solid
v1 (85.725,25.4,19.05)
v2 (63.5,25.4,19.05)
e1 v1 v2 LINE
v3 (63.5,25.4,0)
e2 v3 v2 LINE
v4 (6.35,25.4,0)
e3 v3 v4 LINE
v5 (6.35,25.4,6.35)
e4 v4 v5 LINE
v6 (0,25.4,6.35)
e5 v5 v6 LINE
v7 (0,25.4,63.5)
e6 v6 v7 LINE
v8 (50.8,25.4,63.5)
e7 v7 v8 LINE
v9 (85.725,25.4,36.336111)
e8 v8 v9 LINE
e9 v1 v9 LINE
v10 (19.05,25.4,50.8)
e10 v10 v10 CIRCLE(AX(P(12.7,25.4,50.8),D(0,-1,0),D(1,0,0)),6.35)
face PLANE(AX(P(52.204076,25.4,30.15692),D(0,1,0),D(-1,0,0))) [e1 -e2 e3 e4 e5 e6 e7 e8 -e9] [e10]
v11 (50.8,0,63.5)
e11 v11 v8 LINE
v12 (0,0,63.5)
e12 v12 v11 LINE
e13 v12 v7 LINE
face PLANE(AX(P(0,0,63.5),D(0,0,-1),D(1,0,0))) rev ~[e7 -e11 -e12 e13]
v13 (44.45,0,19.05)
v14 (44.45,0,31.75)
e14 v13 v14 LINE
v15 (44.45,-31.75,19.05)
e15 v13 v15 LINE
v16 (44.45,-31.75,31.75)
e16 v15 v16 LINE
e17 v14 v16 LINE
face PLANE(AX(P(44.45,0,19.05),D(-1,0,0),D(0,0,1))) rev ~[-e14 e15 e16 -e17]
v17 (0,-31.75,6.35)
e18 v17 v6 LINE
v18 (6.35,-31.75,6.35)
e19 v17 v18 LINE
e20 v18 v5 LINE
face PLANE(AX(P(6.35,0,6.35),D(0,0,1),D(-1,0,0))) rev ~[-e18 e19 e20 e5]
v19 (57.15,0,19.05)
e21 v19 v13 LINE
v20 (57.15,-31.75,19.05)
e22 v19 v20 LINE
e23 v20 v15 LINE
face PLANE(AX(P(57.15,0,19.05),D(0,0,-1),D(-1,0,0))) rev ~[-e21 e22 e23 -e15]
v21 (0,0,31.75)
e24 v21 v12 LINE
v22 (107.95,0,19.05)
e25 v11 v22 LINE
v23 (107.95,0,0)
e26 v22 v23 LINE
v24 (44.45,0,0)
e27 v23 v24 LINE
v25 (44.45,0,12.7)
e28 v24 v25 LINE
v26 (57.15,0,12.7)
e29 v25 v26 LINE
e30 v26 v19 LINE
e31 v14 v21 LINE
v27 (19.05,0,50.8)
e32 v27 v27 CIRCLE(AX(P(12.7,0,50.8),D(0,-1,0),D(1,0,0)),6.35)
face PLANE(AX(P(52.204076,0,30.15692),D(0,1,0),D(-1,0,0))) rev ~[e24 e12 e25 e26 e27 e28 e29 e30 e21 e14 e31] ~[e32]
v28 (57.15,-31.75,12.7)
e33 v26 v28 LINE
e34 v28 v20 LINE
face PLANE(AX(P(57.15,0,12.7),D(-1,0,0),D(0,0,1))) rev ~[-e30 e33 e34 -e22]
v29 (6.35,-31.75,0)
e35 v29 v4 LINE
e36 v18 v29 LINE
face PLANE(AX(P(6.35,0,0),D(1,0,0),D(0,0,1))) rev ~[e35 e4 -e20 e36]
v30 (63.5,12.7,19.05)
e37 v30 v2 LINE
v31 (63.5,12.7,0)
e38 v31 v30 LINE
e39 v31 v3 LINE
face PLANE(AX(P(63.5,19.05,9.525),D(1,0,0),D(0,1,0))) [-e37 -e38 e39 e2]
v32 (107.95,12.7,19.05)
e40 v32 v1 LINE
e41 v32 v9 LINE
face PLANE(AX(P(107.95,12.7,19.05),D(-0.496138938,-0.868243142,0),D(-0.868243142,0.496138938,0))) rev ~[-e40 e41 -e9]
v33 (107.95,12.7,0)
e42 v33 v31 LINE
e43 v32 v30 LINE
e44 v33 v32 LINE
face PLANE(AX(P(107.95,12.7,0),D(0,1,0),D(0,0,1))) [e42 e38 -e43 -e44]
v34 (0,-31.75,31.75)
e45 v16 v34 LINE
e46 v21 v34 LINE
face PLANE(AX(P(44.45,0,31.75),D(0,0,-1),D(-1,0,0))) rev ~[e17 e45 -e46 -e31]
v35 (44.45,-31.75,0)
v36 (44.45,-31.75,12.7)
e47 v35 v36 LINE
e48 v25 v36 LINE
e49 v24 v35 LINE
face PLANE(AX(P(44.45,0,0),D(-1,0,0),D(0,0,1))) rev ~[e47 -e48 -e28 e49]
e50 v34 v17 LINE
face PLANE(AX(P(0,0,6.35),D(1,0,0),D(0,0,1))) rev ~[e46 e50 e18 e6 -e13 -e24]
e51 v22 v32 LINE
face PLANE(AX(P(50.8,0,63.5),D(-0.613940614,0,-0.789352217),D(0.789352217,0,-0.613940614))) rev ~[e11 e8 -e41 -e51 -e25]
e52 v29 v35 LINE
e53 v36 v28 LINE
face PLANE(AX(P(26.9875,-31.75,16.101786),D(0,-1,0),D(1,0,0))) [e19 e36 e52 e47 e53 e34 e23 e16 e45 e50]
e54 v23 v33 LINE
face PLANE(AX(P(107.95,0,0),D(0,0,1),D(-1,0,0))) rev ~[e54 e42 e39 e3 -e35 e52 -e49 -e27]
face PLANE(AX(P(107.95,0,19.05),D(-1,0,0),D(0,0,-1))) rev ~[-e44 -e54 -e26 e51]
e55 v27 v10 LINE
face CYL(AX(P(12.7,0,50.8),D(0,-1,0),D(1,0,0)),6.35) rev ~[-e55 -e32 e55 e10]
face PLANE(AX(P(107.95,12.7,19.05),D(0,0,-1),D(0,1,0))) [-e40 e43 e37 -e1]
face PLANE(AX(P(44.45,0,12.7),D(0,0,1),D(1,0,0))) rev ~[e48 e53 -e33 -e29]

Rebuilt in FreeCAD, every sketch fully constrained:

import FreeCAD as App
import Part
import Sketcher
from FreeCAD import Vector
Q = App.Units.Quantity

doc = App.newDocument("Part")
body = doc.addObject("PartDesign::Body", "Body")

# Sketch on XZ plane
sketch1 = body.newObject("Sketcher::SketchObject", "Sketch")
sketch1.AttachmentSupport = (doc.getObject("XZ_Plane"), [""])
sketch1.MapMode = "FlatFace"
sketch1.addGeometry(Part.LineSegment(Vector(6, 6, 0), Vector(6, 0, 0)), False)
sketch1.addGeometry(Part.LineSegment(Vector(6, 0, 0), Vector(44, 0, 0)), False)
sketch1.addGeometry(Part.LineSegment(Vector(44, 0, 0), Vector(44, 13, 0)), False)
sketch1.addGeometry(Part.LineSegment(Vector(44, 13, 0), Vector(57, 13, 0)), False)
sketch1.addGeometry(Part.LineSegment(Vector(57, 13, 0), Vector(57, 19, 0)), False)
sketch1.addGeometry(Part.LineSegment(Vector(57, 19, 0), Vector(44, 19, 0)), False)
sketch1.addGeometry(Part.LineSegment(Vector(44, 19, 0), Vector(44, 32, 0)), False)
sketch1.addGeometry(Part.LineSegment(Vector(44, 32, 0), Vector(0, 32, 0)), False)
sketch1.addGeometry(Part.LineSegment(Vector(0, 32, 0), Vector(0, 6, 0)), False)
sketch1.addGeometry(Part.LineSegment(Vector(0, 6, 0), Vector(6, 6, 0)), False)
sketch1.addConstraint(Sketcher.Constraint("Coincident", 0, 2, 1, 1))
sketch1.addConstraint(Sketcher.Constraint("Coincident", 1, 2, 2, 1))
sketch1.addConstraint(Sketcher.Constraint("Coincident", 2, 2, 3, 1))
sketch1.addConstraint(Sketcher.Constraint("Coincident", 3, 2, 4, 1))
sketch1.addConstraint(Sketcher.Constraint("Coincident", 4, 2, 5, 1))
sketch1.addConstraint(Sketcher.Constraint("Coincident", 5, 2, 6, 1))
sketch1.addConstraint(Sketcher.Constraint("Coincident", 6, 2, 7, 1))
sketch1.addConstraint(Sketcher.Constraint("Coincident", 7, 2, 8, 1))
sketch1.addConstraint(Sketcher.Constraint("Coincident", 8, 2, 9, 1))
sketch1.addConstraint(Sketcher.Constraint("Coincident", 9, 2, 0, 1))
sketch1.addConstraint(Sketcher.Constraint("Vertical", 0))
sketch1.addConstraint(Sketcher.Constraint("Horizontal", 1))
sketch1.addConstraint(Sketcher.Constraint("Vertical", 2))
sketch1.addConstraint(Sketcher.Constraint("Horizontal", 3))
sketch1.addConstraint(Sketcher.Constraint("Vertical", 4))
sketch1.addConstraint(Sketcher.Constraint("Horizontal", 5))
sketch1.addConstraint(Sketcher.Constraint("Vertical", 6))
sketch1.addConstraint(Sketcher.Constraint("Horizontal", 7))
sketch1.addConstraint(Sketcher.Constraint("Vertical", 8))
sketch1.addConstraint(Sketcher.Constraint("Horizontal", 9))
sketch1.addConstraint(Sketcher.Constraint("PointOnObject", 0, 2, -1))
sketch1.addConstraint(Sketcher.Constraint("PointOnObject", 7, 2, -2))
sketch1.addConstraint(Sketcher.Constraint("Vertical", 2, 2, 5, 2))
sketch1.addConstraint(Sketcher.Constraint("Equal", 9, 0))
sketch1.addConstraint(Sketcher.Constraint("Equal", 5, 2))
sketch1.addConstraint(Sketcher.Constraint("Equal", 0, 4))
sketch1.addConstraint(Sketcher.Constraint("Equal", 2, 6))
sketch1.addConstraint(Sketcher.Constraint("DistanceY", 8, 2, 8, 1, Q("1 in")))
sketch1.addConstraint(Sketcher.Constraint("DistanceX", 1, 1, 1, 2, Q("1.5 in")))
sketch1.addConstraint(Sketcher.Constraint("DistanceX", 7, 2, 7, 1, Q("1.75 in")))
pad1 = body.newObject("PartDesign::Pad", "Pad")
pad1.Profile = sketch1
pad1.Length = Q("1.25 in")

# Sketch on XZ plane
sketch2 = body.newObject("Sketcher::SketchObject", "Sketch001")
sketch2.AttachmentSupport = (doc.getObject("XZ_Plane"), [""])
sketch2.MapMode = "FlatFace"
sketch2.addGeometry(Part.LineSegment(Vector(108, 0, 0), Vector(6, 0, 0)), False)
sketch2.addGeometry(Part.LineSegment(Vector(6, 0, 0), Vector(6, 6, 0)), False)
sketch2.addGeometry(Part.LineSegment(Vector(6, 6, 0), Vector(0, 6, 0)), False)
sketch2.addGeometry(Part.LineSegment(Vector(0, 6, 0), Vector(0, 64, 0)), False)
sketch2.addGeometry(Part.LineSegment(Vector(0, 64, 0), Vector(51, 64, 0)), False)
sketch2.addGeometry(Part.LineSegment(Vector(51, 64, 0), Vector(108, 19, 0)), False)
sketch2.addGeometry(Part.LineSegment(Vector(108, 19, 0), Vector(108, 0, 0)), False)
sketch2.addConstraint(Sketcher.Constraint("Coincident", 0, 2, 1, 1))
sketch2.addConstraint(Sketcher.Constraint("Coincident", 1, 2, 2, 1))
sketch2.addConstraint(Sketcher.Constraint("Coincident", 2, 2, 3, 1))
sketch2.addConstraint(Sketcher.Constraint("Coincident", 3, 2, 4, 1))
sketch2.addConstraint(Sketcher.Constraint("Coincident", 4, 2, 5, 1))
sketch2.addConstraint(Sketcher.Constraint("Coincident", 5, 2, 6, 1))
sketch2.addConstraint(Sketcher.Constraint("Coincident", 6, 2, 0, 1))
sketch2.addConstraint(Sketcher.Constraint("Horizontal", 0))
sketch2.addConstraint(Sketcher.Constraint("Vertical", 1))
sketch2.addConstraint(Sketcher.Constraint("Horizontal", 2))
sketch2.addConstraint(Sketcher.Constraint("Vertical", 3))
sketch2.addConstraint(Sketcher.Constraint("Horizontal", 4))
sketch2.addConstraint(Sketcher.Constraint("Vertical", 6))
sketch2.addConstraint(Sketcher.Constraint("PointOnObject", 0, 2, -1))
sketch2.addConstraint(Sketcher.Constraint("PointOnObject", 2, 2, -2))
sketch2.addConstraint(Sketcher.Constraint("Equal", 2, 1))
sketch2.addConstraint(Sketcher.Constraint("DistanceX", 0, 2, 0, 1, Q("4 in")))
sketch2.addConstraint(Sketcher.Constraint("DistanceX", 4, 1, 4, 2, Q("2 in")))
sketch2.addConstraint(Sketcher.Constraint("DistanceX", 2, 2, 2, 1, Q("0.25 in")))
sketch2.addConstraint(Sketcher.Constraint("DistanceY", 3, 1, 3, 2, Q("2.25 in")))
sketch2.addConstraint(Sketcher.Constraint("DistanceY", 6, 2, 6, 1, Q("0.75 in")))
pad2 = body.newObject("PartDesign::Pad", "Pad001")
pad2.Profile = sketch2
pad2.Length = Q("1 in")
pad2.Reversed = True

# Sketch on XZ plane
sketch3 = body.newObject("Sketcher::SketchObject", "Sketch002")
sketch3.AttachmentSupport = (doc.getObject("XZ_Plane"), [""])
sketch3.MapMode = "FlatFace"
sketch3.addGeometry(Part.Circle(Vector(13, 51, 0), Vector(0, 0, 1), 6), False)
sketch3.addConstraint(Sketcher.Constraint("Diameter", 0, Q("0.5 in")))
sketch3.addConstraint(Sketcher.Constraint("DistanceY", -1, 1, 0, 3, Q("2 in")))
sketch3.addConstraint(Sketcher.Constraint("DistanceX", -1, 1, 0, 3, Q("0.5 in")))
pocket1 = body.newObject("PartDesign::Pocket", "Pocket")
pocket1.Profile = sketch3
pocket1.Type = "ThroughAll"

# Sketch on YZ plane
sketch4 = body.newObject("Sketcher::SketchObject", "Sketch003")
sketch4.AttachmentSupport = (doc.getObject("YZ_Plane"), [""])
sketch4.MapMode = "FlatFace"
sketch4.AttachmentOffset = App.Placement(Vector(0, 0, 4.25 * 25.4), App.Rotation())
sketch4.addGeometry(Part.LineSegment(Vector(13, 19, 0), Vector(13, 0, 0)), False)
sketch4.addGeometry(Part.LineSegment(Vector(13, 0, 0), Vector(25, 0, 0)), False)
sketch4.addGeometry(Part.LineSegment(Vector(25, 0, 0), Vector(25, 19, 0)), False)
sketch4.addGeometry(Part.LineSegment(Vector(25, 19, 0), Vector(13, 19, 0)), False)
sketch4.addConstraint(Sketcher.Constraint("Coincident", 0, 2, 1, 1))
sketch4.addConstraint(Sketcher.Constraint("Coincident", 1, 2, 2, 1))
sketch4.addConstraint(Sketcher.Constraint("Coincident", 2, 2, 3, 1))
sketch4.addConstraint(Sketcher.Constraint("Coincident", 3, 2, 0, 1))
sketch4.addConstraint(Sketcher.Constraint("Vertical", 0))
sketch4.addConstraint(Sketcher.Constraint("Horizontal", 1))
sketch4.addConstraint(Sketcher.Constraint("Vertical", 2))
sketch4.addConstraint(Sketcher.Constraint("Horizontal", 3))
sketch4.addConstraint(Sketcher.Constraint("PointOnObject", 0, 2, -1))
sketch4.addConstraint(Sketcher.Constraint("DistanceX", 1, 1, 1, 2, Q("0.5 in")))
sketch4.addConstraint(Sketcher.Constraint("DistanceX", -1, 1, 1, 2, Q("1 in")))
sketch4.addConstraint(Sketcher.Constraint("DistanceY", 0, 2, 0, 1, Q("0.75 in")))
pocket2 = body.newObject("PartDesign::Pocket", "Pocket001")
pocket2.Profile = sketch4
pocket2.Length = Q("1.75 in")

# Sketch on XY plane
sketch5 = body.newObject("Sketcher::SketchObject", "Sketch004")
sketch5.AttachmentSupport = (doc.getObject("XY_Plane"), [""])
sketch5.MapMode = "FlatFace"
sketch5.AttachmentOffset = App.Placement(Vector(0, 0, 0.75 * 25.4), App.Rotation())
sketch5.addGeometry(Part.LineSegment(Vector(108, 25, 0), Vector(108, 13, 0)), False)
sketch5.addGeometry(Part.LineSegment(Vector(108, 13, 0), Vector(86, 25, 0)), False)
sketch5.addGeometry(Part.LineSegment(Vector(86, 25, 0), Vector(108, 25, 0)), False)
sketch5.addConstraint(Sketcher.Constraint("Coincident", 0, 2, 1, 1))
sketch5.addConstraint(Sketcher.Constraint("Coincident", 1, 2, 2, 1))
sketch5.addConstraint(Sketcher.Constraint("Coincident", 2, 2, 0, 1))
sketch5.addConstraint(Sketcher.Constraint("Vertical", 0))
sketch5.addConstraint(Sketcher.Constraint("Horizontal", 2))
sketch5.addConstraint(Sketcher.Constraint("DistanceY", 0, 2, 0, 1, Q("0.5 in")))
sketch5.addConstraint(Sketcher.Constraint("DistanceY", -1, 1, 1, 2, Q("1 in")))
sketch5.addConstraint(Sketcher.Constraint("DistanceX", 2, 1, 2, 2, Q("0.875 in")))
sketch5.addConstraint(Sketcher.Constraint("DistanceX", -1, 1, 0, 2, Q("4.25 in")))
pocket3 = body.newObject("PartDesign::Pocket", "Pocket002")
pocket3.Profile = sketch5
pocket3.Type = "ThroughAll"
pocket3.Reversed = True

doc.recompute()
